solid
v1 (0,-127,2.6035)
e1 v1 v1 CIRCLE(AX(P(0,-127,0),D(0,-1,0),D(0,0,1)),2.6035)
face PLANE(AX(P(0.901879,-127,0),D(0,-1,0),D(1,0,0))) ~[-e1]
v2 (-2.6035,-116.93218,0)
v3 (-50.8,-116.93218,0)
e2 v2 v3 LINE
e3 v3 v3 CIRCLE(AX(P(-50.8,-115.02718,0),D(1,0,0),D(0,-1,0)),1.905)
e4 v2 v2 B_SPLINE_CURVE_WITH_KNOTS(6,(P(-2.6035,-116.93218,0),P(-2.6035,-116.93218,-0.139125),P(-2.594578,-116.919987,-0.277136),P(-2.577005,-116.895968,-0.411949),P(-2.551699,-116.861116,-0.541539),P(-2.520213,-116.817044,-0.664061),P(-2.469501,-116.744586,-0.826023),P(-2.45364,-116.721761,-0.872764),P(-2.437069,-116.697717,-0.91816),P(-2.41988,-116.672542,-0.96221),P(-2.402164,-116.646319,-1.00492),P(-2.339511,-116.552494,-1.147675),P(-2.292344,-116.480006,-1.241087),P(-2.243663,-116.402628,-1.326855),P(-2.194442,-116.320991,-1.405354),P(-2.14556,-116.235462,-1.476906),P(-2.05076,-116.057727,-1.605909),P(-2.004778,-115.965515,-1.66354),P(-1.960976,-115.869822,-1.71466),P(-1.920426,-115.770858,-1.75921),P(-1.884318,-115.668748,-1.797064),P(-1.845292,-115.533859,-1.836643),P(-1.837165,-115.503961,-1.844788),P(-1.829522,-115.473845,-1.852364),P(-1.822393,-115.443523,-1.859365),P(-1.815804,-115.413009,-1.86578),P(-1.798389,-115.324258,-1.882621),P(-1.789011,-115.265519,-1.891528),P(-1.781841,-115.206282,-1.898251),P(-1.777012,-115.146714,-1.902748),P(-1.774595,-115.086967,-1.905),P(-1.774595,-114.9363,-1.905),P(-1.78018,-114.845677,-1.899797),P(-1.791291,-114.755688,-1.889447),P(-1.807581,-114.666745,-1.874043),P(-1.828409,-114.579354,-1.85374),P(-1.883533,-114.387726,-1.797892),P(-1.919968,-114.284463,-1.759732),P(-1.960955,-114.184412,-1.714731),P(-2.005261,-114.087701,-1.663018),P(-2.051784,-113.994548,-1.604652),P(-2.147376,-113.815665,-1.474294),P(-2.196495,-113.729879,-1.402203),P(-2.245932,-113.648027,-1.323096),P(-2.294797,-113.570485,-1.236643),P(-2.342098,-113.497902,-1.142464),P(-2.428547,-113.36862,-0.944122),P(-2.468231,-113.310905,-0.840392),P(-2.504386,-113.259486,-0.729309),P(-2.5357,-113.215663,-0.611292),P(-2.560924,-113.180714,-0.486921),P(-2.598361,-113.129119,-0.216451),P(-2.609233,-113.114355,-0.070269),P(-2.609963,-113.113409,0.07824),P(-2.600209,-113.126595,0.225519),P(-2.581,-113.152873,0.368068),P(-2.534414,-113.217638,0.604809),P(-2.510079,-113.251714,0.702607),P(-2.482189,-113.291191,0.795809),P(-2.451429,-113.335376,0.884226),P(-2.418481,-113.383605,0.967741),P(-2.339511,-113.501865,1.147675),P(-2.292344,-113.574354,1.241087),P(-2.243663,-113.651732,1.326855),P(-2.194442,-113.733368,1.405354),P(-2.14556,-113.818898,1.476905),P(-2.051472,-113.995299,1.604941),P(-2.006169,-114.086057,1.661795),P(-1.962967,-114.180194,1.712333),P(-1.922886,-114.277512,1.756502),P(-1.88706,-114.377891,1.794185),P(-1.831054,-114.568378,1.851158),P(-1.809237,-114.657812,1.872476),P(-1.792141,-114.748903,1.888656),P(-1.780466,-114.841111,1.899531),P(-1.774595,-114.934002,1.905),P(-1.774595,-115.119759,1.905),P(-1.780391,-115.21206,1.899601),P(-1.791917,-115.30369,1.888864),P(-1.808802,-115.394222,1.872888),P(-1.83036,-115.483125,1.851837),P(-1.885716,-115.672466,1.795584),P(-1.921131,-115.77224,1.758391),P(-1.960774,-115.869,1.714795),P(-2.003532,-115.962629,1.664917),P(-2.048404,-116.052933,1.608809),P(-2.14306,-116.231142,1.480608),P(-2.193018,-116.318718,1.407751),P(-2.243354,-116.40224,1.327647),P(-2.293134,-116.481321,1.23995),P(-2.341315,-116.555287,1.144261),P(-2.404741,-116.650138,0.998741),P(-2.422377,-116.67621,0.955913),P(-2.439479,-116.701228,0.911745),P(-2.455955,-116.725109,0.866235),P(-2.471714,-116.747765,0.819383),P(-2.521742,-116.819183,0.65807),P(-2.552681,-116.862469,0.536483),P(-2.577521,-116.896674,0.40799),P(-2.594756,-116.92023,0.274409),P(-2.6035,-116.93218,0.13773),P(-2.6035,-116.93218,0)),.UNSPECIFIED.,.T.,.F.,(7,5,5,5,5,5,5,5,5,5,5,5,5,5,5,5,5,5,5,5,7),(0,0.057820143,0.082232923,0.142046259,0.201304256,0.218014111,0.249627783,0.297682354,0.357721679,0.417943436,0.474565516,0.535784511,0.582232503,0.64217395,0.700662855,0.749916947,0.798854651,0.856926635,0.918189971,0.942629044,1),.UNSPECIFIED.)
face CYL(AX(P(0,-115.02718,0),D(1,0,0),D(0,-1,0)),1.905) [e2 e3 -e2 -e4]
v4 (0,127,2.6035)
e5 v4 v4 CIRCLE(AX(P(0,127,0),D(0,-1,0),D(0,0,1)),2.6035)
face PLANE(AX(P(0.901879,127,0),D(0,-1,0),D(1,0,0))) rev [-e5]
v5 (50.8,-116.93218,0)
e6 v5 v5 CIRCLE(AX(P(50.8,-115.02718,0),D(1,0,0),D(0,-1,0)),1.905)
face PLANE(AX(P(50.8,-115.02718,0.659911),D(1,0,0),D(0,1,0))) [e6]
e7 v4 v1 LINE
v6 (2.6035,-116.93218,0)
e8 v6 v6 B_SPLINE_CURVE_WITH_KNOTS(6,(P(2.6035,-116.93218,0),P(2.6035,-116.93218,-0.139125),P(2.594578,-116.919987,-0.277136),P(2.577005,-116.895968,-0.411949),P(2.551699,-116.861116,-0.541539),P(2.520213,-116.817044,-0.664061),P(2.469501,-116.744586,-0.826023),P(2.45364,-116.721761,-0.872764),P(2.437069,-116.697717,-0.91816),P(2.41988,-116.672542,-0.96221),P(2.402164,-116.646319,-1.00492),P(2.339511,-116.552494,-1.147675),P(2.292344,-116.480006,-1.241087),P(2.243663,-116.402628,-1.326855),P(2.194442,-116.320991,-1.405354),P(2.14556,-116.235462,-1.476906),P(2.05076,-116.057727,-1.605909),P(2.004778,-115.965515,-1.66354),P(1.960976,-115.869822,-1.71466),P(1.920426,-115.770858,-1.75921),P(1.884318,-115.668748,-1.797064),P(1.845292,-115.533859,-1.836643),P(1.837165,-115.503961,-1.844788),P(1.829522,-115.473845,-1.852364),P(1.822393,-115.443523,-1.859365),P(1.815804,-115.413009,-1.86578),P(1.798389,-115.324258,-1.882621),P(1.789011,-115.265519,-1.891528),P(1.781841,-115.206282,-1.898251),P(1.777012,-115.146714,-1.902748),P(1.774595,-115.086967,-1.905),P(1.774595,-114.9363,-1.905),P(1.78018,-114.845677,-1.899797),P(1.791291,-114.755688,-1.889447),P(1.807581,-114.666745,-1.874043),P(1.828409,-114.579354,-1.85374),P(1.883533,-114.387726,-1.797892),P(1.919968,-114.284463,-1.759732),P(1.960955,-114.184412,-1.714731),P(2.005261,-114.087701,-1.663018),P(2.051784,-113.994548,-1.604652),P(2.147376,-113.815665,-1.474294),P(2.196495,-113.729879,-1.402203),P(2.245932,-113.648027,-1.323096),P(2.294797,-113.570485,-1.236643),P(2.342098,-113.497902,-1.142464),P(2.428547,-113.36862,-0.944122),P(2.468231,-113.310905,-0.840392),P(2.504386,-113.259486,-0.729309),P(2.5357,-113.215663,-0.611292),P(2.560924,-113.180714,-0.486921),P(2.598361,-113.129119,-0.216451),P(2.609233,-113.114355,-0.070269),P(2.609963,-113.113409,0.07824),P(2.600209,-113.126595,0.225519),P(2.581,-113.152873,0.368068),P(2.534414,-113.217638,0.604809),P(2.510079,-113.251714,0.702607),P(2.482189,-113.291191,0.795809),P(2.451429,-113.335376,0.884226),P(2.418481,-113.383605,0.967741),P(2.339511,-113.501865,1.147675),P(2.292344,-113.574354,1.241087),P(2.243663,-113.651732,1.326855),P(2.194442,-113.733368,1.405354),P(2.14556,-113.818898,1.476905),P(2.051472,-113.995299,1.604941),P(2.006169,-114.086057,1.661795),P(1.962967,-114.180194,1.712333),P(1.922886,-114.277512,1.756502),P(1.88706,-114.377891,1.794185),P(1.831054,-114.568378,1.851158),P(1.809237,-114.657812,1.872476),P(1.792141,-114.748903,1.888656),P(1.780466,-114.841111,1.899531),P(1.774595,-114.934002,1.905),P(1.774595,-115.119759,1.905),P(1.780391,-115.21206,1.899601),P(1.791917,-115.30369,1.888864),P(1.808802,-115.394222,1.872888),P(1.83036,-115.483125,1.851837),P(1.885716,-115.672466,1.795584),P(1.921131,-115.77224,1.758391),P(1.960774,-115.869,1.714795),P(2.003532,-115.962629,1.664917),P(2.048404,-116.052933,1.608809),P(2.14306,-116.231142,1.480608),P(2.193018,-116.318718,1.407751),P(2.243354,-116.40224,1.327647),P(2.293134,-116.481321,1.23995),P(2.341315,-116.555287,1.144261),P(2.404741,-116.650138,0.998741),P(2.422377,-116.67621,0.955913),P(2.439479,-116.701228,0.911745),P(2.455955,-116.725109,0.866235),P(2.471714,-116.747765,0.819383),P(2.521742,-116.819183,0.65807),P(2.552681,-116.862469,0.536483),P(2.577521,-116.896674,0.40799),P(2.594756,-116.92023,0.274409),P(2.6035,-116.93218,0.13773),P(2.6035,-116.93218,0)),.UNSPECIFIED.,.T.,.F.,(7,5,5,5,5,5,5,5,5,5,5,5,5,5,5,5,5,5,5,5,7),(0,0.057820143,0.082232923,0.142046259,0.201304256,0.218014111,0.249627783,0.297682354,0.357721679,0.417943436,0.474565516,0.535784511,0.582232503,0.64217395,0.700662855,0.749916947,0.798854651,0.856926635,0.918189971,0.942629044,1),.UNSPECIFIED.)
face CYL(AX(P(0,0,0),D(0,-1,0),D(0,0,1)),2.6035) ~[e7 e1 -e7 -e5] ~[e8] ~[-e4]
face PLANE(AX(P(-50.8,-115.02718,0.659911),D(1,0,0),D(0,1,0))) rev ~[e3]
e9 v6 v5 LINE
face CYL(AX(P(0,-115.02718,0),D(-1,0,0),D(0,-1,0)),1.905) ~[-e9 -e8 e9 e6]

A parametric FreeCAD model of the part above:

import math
import FreeCAD as App
import Part
import Sketcher

V = App.Vector
Q = App.Units.Quantity

doc = App.newDocument("Part")
body = doc.addObject("PartDesign::Body", "Body")

sketch1 = body.newObject("Sketcher::SketchObject", "Sketch")
sketch1.AttachmentSupport = (doc.getObject("XZ_Plane"), [""])
sketch1.MapMode = "FlatFace"
sketch1.addGeometry(Part.LineSegment(V(0, -2.6035, 0), V(0, 2.6035, 0)), False)
sketch1.addGeometry(Part.ArcOfCircle(Part.Circle(V(0, 0, 0), V(0, 0, 1), 2.6035), math.radians(90), math.radians(270)), False)
sketch1.addConstraint(Sketcher.Constraint("Coincident", 0, 1, 1, 2))
sketch1.addConstraint(Sketcher.Constraint("Coincident", 1, 1, 0, 2))
sketch1.addConstraint(Sketcher.Constraint("Vertical", 0))
sketch1.addConstraint(Sketcher.Constraint("Coincident", 1, 3, -1, 1))
sketch1.addConstraint(Sketcher.Constraint("PointOnObject", 0, 1, -2))
sketch1.addConstraint(Sketcher.Constraint("Radius", 1, Q("0.1025 in")))
pad1 = body.newObject("PartDesign::Pad", "Pad")
pad1.Profile = sketch1
pad1.Type = "TwoLengths"
pad1.Length = Q("5 in")
pad1.Length2 = Q("5 in")
body2 = doc.addObject("PartDesign::Body", "Body001")
doc.recompute()

body2.BaseFeature = body
doc.recompute()

mirroring = doc.addObject("Part::Mirroring", "Mirroring")
mirroring.Source = body
mirroring.Base = V(0, 0, 0)
mirroring.Normal = V(1, 0, 0)
body3 = doc.addObject("PartDesign::Body", "Body002")
body3.BaseFeature = mirroring
boolean = body2.newObject("PartDesign::Boolean", "Boolean")
boolean.Type = "Fuse"
boolean.addObjects([body3])
doc.recompute()

sketch2 = body2.newObject("Sketcher::SketchObject", "Sketch001")
sketch2.AttachmentSupport = (doc.getObject("YZ_Plane001"), [""])
sketch2.MapMode = "FlatFace"
sketch2.addGeometry(Part.Circle(V(-115.02718, 0, 0), V(0, 0, 1), 1.905), False)
sketch2.addConstraint(Sketcher.Constraint("PointOnObject", 0, 3, -1))
sketch2.addConstraint(Sketcher.Constraint("Diameter", 0, Q("0.15 in")))
sketch2.addConstraint(Sketcher.Constraint("DistanceX", 0, 3, -1, 1, Q("115.02718 mm")))
pad2 = body2.newObject("PartDesign::Pad", "Pad001")
pad2.Profile = sketch2
pad2.Type = "TwoLengths"
pad2.Length = Q("2 in")
pad2.Length2 = Q("2 in")
mirroring.Visibility = False

doc.recompute()
